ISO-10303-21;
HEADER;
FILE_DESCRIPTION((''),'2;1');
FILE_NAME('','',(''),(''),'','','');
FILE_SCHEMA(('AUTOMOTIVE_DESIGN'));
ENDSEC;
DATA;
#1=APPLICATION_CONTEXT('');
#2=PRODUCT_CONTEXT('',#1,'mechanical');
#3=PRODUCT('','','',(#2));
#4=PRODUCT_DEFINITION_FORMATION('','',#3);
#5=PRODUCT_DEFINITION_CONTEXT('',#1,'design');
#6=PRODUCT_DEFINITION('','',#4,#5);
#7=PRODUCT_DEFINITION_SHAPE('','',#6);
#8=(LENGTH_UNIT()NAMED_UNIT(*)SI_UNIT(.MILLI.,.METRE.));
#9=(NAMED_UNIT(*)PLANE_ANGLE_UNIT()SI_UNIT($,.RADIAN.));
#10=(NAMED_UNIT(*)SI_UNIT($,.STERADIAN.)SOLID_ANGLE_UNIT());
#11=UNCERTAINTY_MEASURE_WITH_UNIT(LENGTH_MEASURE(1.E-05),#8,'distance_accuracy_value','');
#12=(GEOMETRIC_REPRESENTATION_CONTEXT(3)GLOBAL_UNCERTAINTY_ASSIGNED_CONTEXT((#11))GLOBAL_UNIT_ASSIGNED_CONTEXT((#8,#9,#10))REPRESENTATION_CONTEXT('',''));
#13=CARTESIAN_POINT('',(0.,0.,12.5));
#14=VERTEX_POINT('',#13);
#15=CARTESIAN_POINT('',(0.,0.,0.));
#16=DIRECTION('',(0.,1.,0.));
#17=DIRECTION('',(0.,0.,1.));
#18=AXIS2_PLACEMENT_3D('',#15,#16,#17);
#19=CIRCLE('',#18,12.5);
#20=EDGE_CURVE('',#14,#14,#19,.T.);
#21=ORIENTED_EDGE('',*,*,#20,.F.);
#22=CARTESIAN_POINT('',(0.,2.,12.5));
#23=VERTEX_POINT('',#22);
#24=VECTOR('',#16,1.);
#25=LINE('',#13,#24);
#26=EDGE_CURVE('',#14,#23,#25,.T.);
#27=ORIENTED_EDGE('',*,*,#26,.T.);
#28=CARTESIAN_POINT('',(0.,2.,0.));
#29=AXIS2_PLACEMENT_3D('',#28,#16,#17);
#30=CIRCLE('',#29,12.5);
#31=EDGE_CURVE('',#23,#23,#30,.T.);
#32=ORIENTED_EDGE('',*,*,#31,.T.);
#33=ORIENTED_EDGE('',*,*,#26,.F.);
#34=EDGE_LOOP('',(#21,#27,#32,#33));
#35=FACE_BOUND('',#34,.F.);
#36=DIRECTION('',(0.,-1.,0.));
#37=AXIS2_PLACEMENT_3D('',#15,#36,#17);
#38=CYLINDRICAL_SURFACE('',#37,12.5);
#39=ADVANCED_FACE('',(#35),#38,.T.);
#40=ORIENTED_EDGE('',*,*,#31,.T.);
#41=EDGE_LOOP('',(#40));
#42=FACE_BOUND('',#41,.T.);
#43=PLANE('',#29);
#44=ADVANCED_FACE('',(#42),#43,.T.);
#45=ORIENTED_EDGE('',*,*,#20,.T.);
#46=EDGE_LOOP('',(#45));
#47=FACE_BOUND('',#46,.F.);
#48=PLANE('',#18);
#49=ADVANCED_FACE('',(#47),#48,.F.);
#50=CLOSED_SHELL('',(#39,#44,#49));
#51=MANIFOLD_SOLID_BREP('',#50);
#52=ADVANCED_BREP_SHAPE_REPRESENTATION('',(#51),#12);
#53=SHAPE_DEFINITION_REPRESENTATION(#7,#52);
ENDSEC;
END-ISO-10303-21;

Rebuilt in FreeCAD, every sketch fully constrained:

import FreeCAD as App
import Part
import Sketcher
Q = App.Units.Quantity

doc = App.newDocument("Part")
body = doc.addObject("PartDesign::Body", "Body")

# Sketch on XZ plane
sketch1 = doc.addObject("Sketcher::SketchObject", "Sketch")
body.addObject(sketch1)
sketch1.AttachmentSupport = (doc.XZ_Plane, [""])
sketch1.MapMode = "FlatFace"
sketch1.addGeometry(Part.Circle(App.Vector(0, 0, 0), App.Vector(0, 0, 1), 12), False)
sketch1.addConstraint(Sketcher.Constraint("Coincident", 0, 3, -1, 1))
sketch1.addConstraint(Sketcher.Constraint("Diameter", 0, Q("25 mm")))
pad1 = doc.addObject("PartDesign::Pad", "Pad")
body.addObject(pad1)
pad1.Profile = sketch1
pad1.Length = 2
pad1.Reversed = True

doc.recompute()
